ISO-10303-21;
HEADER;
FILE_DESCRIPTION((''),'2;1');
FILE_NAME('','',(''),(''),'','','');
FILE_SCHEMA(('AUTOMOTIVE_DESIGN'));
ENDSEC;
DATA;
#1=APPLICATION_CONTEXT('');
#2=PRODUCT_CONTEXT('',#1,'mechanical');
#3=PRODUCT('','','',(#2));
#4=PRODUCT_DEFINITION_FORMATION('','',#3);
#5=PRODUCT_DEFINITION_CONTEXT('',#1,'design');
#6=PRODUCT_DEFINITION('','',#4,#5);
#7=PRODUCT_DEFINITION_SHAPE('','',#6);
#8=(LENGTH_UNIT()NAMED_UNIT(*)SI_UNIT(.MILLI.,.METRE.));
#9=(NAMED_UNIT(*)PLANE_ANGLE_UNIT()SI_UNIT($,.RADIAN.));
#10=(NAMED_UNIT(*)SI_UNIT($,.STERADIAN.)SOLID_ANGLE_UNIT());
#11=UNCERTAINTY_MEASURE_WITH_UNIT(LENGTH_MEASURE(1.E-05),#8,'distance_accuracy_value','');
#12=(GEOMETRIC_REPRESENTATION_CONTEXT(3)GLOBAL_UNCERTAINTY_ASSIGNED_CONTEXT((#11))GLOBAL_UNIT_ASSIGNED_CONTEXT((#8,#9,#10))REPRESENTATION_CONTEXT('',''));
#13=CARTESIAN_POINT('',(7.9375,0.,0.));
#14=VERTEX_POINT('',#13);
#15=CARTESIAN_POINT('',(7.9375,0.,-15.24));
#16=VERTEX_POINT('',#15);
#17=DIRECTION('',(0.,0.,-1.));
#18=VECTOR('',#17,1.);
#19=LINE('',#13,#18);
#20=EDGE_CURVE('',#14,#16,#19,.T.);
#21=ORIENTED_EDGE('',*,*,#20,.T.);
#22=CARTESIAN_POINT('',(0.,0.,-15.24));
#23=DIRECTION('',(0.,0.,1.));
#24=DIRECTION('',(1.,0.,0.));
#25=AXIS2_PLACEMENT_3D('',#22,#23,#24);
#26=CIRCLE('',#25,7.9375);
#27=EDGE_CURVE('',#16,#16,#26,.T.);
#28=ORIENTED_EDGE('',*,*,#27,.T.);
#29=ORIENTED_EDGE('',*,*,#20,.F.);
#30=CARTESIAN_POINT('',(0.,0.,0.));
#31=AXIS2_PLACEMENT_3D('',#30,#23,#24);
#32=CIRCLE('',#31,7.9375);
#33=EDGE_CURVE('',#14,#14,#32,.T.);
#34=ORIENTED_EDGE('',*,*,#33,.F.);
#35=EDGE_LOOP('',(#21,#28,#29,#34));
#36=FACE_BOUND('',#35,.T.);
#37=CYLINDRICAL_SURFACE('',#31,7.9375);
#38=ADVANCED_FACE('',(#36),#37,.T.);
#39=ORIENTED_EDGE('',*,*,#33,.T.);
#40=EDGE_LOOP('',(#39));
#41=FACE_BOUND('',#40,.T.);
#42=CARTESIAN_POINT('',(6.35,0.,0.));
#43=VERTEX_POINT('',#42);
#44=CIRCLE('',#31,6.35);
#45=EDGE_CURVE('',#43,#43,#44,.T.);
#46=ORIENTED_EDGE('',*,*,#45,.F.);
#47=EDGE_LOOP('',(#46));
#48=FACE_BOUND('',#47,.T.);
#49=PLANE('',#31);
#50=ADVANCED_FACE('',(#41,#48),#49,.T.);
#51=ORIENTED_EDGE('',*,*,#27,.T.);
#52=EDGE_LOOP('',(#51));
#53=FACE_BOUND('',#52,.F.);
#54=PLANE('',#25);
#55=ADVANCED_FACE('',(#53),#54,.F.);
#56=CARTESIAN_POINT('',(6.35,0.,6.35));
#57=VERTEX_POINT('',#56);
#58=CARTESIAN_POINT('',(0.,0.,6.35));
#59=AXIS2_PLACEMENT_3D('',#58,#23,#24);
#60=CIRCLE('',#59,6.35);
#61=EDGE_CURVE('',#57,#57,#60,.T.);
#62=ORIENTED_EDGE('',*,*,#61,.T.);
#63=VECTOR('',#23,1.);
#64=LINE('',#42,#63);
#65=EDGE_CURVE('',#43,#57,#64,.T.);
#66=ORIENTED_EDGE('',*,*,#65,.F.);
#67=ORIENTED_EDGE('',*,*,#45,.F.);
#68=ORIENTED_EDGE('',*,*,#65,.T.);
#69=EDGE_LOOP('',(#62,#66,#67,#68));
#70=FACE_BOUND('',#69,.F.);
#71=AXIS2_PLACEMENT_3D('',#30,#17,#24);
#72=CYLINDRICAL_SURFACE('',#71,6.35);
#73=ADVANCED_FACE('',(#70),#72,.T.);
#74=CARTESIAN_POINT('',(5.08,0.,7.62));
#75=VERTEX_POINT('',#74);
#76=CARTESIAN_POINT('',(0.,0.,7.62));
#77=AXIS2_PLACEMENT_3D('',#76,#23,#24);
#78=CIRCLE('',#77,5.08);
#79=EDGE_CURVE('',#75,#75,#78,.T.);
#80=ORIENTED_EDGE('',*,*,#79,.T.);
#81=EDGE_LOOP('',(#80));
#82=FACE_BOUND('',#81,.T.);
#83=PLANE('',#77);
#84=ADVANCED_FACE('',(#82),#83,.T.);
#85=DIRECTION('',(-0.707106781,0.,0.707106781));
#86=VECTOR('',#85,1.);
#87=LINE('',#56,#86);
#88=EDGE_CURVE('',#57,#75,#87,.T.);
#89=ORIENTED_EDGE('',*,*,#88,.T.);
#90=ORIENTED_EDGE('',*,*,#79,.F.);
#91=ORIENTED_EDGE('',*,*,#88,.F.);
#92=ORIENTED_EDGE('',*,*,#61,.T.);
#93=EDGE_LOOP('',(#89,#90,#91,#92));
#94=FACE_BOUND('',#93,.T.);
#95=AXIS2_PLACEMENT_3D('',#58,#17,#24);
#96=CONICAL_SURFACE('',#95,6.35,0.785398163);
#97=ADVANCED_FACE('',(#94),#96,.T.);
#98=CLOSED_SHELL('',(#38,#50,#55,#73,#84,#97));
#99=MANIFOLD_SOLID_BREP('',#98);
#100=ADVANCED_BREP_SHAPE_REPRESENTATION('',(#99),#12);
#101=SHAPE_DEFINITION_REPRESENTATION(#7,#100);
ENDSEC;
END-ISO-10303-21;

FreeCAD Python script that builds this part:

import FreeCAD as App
import Part
import Sketcher

V = App.Vector
Q = App.Units.Quantity


def edges_at(feature, points):
    """Names of the edges that pass closest to the given points."""
    edges = feature.Shape.Edges
    near = lambda p: min(range(len(edges)), key=lambda i: edges[i].distToShape(Part.Vertex(*p))[0])
    return sorted({f"Edge{near(p) + 1}" for p in points})

doc = App.newDocument("Part")
body = doc.addObject("PartDesign::Body", "Body")

# Sketch on XY plane
sketch1 = doc.addObject("Sketcher::SketchObject", "Sketch")
body.addObject(sketch1)
sketch1.AttachmentSupport = (doc.XY_Plane, [""])
sketch1.MapMode = "FlatFace"
sketch1.addGeometry(Part.Circle(V(0, 0, 0), V(0, 0, 1), 6), False)
sketch1.addConstraint(Sketcher.Constraint("Coincident", 0, 3, -1, 1))
sketch1.addConstraint(Sketcher.Constraint("Diameter", 0, Q("0.5 in")))
pad1 = doc.addObject("PartDesign::Pad", "Pad")
body.addObject(pad1)
pad1.Profile = sketch1
pad1.Length = Q("0.3 in")

# Sketch on XY plane
sketch2 = doc.addObject("Sketcher::SketchObject", "Sketch001")
body.addObject(sketch2)
sketch2.AttachmentSupport = (doc.XY_Plane, [""])
sketch2.MapMode = "FlatFace"
sketch2.addGeometry(Part.Circle(V(0, 0, 0), V(0, 0, 1), 8), False)
sketch2.addConstraint(Sketcher.Constraint("Coincident", 0, 3, -1, 1))
sketch2.addConstraint(Sketcher.Constraint("Diameter", 0, Q("0.625 in")))
pad2 = doc.addObject("PartDesign::Pad", "Pad001")
body.addObject(pad2)
pad2.Profile = sketch2
pad2.Length = Q("0.6 in")
pad2.Reversed = True
doc.recompute()

chamfer = doc.addObject("PartDesign::Chamfer", "Chamfer")
body.addObject(chamfer)
chamfer.Base = (pad2, edges_at(pad2, [(-6.35, 0, 7.62)]))
chamfer.Size = Q("0.05 in")

doc.recompute()
